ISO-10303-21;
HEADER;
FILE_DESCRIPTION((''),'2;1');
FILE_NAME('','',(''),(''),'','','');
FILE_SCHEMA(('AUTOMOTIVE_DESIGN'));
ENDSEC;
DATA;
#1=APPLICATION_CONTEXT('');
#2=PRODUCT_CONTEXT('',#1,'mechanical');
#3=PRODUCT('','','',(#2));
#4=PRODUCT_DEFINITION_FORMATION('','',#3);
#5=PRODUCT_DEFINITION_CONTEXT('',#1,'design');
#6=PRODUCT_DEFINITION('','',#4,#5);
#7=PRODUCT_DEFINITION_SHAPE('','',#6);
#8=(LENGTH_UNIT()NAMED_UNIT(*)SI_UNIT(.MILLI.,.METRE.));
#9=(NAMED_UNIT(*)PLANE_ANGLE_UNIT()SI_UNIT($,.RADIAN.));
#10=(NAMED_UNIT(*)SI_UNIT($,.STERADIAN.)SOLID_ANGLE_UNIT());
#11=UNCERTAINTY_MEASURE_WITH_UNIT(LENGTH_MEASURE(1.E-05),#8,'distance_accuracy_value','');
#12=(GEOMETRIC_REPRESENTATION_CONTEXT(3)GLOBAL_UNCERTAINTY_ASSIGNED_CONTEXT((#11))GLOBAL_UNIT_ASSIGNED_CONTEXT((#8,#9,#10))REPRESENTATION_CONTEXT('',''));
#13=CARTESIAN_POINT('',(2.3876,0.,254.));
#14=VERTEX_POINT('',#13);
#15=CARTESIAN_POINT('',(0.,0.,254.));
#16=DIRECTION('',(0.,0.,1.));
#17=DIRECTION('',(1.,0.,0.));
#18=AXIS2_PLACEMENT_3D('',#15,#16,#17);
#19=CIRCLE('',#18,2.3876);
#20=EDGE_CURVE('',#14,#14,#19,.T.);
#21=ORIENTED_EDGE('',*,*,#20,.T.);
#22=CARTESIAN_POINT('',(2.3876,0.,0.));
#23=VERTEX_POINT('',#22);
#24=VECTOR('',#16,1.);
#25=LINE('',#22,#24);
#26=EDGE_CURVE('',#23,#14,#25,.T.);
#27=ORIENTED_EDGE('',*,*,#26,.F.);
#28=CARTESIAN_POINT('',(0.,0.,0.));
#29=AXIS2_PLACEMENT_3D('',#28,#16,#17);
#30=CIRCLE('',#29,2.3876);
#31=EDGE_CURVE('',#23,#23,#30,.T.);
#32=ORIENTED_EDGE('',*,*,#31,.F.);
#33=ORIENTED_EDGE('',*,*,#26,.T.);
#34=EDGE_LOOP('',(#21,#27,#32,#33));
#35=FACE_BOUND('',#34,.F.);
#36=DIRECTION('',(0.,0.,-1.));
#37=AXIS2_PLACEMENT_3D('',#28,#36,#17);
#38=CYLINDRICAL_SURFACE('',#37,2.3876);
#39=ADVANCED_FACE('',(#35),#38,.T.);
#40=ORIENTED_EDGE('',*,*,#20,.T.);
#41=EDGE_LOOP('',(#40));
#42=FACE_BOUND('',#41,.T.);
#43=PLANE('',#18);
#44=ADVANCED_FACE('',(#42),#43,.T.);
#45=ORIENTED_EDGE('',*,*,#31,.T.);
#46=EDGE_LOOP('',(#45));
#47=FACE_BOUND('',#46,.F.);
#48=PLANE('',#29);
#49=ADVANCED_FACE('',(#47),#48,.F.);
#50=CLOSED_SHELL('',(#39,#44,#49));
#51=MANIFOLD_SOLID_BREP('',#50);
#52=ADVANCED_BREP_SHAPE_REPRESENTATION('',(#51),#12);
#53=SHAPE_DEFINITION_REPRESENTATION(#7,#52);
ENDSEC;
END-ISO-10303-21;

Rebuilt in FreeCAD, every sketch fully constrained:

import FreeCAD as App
import Part
import Sketcher

V = App.Vector
Q = App.Units.Quantity

doc = App.newDocument("Part")
body = doc.addObject("PartDesign::Body", "Body")

# Sketch on XY plane
sketch1 = body.newObject("Sketcher::SketchObject", "Sketch")
sketch1.AttachmentSupport = (doc.getObject("XY_Plane"), [""])
sketch1.MapMode = "FlatFace"
sketch1.addGeometry(Part.Circle(V(0, 0, 0), V(0, 0, 1), 2.3876), False)
sketch1.addConstraint(Sketcher.Constraint("Coincident", 0, 3, -1, 1))
sketch1.addConstraint(Sketcher.Constraint("Diameter", 0, Q("0.188 in")))
pad1 = body.newObject("PartDesign::Pad", "Pad")
pad1.Profile = sketch1
pad1.Length = Q("10 in")

doc.recompute()
